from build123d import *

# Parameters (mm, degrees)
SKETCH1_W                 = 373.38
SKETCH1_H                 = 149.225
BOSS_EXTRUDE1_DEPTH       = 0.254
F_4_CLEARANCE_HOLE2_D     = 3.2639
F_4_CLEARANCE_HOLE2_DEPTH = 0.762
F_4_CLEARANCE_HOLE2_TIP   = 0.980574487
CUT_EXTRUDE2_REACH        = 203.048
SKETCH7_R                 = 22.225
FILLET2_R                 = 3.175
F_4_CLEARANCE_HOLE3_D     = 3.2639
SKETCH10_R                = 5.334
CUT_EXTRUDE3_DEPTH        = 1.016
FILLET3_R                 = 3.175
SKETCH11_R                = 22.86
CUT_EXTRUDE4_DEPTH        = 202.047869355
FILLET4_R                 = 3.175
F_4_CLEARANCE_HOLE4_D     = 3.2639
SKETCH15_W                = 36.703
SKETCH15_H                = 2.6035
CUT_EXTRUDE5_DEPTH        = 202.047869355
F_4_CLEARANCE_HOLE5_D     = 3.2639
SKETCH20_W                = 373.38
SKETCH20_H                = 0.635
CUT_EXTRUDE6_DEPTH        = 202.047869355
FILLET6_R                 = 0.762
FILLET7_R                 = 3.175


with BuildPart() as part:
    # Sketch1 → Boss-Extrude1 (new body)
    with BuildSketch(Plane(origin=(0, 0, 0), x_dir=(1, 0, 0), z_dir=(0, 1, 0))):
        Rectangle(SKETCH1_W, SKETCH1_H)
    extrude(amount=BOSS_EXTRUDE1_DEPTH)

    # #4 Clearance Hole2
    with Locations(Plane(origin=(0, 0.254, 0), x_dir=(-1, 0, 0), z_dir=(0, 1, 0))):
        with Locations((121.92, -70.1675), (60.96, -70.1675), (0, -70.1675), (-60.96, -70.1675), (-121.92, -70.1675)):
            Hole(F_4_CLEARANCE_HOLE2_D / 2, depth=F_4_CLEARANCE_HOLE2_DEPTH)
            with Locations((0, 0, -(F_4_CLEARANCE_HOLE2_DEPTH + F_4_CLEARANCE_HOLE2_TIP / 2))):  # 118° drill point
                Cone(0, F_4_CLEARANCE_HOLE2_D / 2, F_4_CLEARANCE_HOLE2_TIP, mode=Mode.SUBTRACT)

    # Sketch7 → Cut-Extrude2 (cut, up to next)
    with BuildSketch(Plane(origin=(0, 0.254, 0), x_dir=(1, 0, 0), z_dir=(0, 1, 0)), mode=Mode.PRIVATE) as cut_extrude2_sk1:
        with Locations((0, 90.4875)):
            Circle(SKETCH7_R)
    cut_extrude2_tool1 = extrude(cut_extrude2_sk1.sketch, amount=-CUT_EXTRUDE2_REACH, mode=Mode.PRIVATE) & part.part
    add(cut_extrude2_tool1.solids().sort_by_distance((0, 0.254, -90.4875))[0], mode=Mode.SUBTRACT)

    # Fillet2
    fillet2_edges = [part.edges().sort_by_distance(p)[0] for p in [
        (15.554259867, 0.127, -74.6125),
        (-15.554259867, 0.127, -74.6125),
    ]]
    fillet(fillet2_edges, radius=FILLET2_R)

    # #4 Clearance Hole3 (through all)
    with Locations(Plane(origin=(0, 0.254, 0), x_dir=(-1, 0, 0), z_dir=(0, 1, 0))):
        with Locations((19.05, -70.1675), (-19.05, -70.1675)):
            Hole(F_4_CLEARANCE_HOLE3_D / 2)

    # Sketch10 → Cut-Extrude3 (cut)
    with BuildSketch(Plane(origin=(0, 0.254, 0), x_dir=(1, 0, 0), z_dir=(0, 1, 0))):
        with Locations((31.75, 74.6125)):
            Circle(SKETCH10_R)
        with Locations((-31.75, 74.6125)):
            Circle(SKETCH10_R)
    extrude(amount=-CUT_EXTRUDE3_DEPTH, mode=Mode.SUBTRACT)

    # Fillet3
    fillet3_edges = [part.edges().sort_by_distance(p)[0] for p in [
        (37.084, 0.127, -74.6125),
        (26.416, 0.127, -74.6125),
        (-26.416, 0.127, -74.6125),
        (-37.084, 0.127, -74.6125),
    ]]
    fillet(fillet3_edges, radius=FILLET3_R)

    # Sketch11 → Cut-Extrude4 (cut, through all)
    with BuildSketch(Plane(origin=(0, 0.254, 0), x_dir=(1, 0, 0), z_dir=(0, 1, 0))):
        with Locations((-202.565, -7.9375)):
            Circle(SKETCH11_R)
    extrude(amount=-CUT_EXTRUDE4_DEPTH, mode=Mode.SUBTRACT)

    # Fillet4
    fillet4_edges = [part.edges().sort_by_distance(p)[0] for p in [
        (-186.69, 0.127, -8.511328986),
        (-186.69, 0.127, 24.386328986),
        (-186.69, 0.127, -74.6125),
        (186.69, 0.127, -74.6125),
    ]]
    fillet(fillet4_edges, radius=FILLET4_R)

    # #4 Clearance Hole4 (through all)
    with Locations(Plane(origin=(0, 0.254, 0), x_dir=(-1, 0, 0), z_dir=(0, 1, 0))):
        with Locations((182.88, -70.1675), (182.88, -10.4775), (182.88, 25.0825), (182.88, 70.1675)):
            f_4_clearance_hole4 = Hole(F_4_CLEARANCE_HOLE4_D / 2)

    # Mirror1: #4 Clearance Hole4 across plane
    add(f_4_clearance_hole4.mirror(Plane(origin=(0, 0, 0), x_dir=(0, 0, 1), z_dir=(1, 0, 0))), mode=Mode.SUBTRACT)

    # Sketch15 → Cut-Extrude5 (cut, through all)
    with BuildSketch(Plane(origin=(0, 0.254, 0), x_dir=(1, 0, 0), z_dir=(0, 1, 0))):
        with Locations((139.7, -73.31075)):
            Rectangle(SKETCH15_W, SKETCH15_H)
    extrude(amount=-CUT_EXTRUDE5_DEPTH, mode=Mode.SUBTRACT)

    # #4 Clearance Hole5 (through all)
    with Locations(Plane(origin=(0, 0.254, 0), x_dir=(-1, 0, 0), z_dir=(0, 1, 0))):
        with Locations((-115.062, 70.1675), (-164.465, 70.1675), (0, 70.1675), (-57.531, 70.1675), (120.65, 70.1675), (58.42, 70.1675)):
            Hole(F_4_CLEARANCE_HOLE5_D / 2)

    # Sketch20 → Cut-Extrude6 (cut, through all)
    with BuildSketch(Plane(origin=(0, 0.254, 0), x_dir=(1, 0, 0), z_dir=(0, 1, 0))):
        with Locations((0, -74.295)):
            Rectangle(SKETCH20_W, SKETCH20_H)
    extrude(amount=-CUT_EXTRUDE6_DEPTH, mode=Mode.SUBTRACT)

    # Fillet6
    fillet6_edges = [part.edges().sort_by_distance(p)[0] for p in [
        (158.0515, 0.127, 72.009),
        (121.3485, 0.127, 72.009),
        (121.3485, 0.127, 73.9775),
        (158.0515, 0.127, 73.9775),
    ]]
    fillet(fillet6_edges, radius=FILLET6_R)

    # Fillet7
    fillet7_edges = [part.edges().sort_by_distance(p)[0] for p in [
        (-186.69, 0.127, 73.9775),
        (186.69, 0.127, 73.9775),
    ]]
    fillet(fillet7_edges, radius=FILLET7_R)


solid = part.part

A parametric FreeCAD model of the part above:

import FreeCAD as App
import Part
import Sketcher
Q = App.Units.Quantity


def edges_at(feature, points):
    """Names of the edges that pass closest to the given points."""
    edges = feature.Shape.Edges
    near = lambda p: min(range(len(edges)), key=lambda i: edges[i].distToShape(Part.Vertex(*p))[0])
    return sorted({f"Edge{near(p) + 1}" for p in points})

doc = App.newDocument("Part")
params = doc.addObject("Spreadsheet::Sheet", "Params")
for row, (alias, value) in enumerate([
    ("sketch1_width", "14.7 in"),
    ("sketch1_height", "5.875 in"),
    ("pad1_length", "0.01 in"),
    ("hole_diameter", "0.1285 in"),
    ("hole_depth", "0.03 in"),
    ("sketch3_diameter", "1.75 in"),
    ("pocket1_length", "0.01 in"),
    ("fillet_radius", "0.125 in"),
    ("hole2_diameter", "0.1285 in"),
    ("sketch5_diameter", "0.42 in"),
    ("pocket2_length", "0.04 in"),
    ("fillet2_radius", "0.125 in"),
    ("sketch6_diameter", "1.8 in"),
    ("fillet3_radius", "0.125 in"),
    ("hole3_diameter", "0.1285 in"),
    ("sketch8_width", "1.445 in"),
    ("hole4_diameter", "0.1285 in"),
    ("sketch10_width", "14.7 in"),
    ("sketch10_height", "0.025 in"),
    ("fillet4_radius", "0.03 in"),
    ("fillet5_radius", "0.125 in"),
], start=1):
    params.set(f"A{row}", alias)
    params.set(f"B{row}", "=" + value)
    params.setAlias(f"B{row}", alias)

body = doc.addObject("PartDesign::Body", "Body")

# Sketch on XZ plane
sketch1 = doc.addObject("Sketcher::SketchObject", "Sketch")
body.addObject(sketch1)
sketch1.AttachmentSupport = (doc.XZ_Plane, [""])
sketch1.MapMode = "FlatFace"
sketch1.addGeometry(Part.LineSegment(App.Vector(-186.69, -74.6125, 0), App.Vector(-186.69, 74.6125, 0)), False)
sketch1.addGeometry(Part.LineSegment(App.Vector(-186.69, 74.6125, 0), App.Vector(186.69, 74.6125, 0)), False)
sketch1.addGeometry(Part.LineSegment(App.Vector(186.69, 74.6125, 0), App.Vector(186.69, -74.6125, 0)), False)
sketch1.addGeometry(Part.LineSegment(App.Vector(186.69, -74.6125, 0), App.Vector(-186.69, -74.6125, 0)), False)
sketch1.addConstraint(Sketcher.Constraint("Coincident", 0, 2, 1, 1))
sketch1.addConstraint(Sketcher.Constraint("Coincident", 1, 2, 2, 1))
sketch1.addConstraint(Sketcher.Constraint("Coincident", 2, 2, 3, 1))
sketch1.addConstraint(Sketcher.Constraint("Coincident", 3, 2, 0, 1))
sketch1.addConstraint(Sketcher.Constraint("Vertical", 0))
sketch1.addConstraint(Sketcher.Constraint("Horizontal", 1))
sketch1.addConstraint(Sketcher.Constraint("Vertical", 2))
sketch1.addConstraint(Sketcher.Constraint("Horizontal", 3))
sketch1.addConstraint(Sketcher.Constraint("Symmetric", 0, 2, 2, 2, -1, 1))
sketch1.addConstraint(Sketcher.Constraint("DistanceX", 1, 1, 1, 2, Q("14.7 in")))
sketch1.addConstraint(Sketcher.Constraint("DistanceY", 0, 1, 0, 2, Q("5.875 in")))
sketch1.setExpression("Constraints[9]", "Params.sketch1_width")
sketch1.setExpression("Constraints[10]", "Params.sketch1_height")
pad1 = doc.addObject("PartDesign::Pad", "Pad")
body.addObject(pad1)
pad1.Profile = sketch1
pad1.setExpression("Length", "Params.pad1_length")
pad1.Reversed = True

# Sketch on XZ plane
sketch2 = doc.addObject("Sketcher::SketchObject", "Sketch001")
body.addObject(sketch2)
sketch2.AttachmentSupport = (doc.XZ_Plane, [""])
sketch2.MapMode = "FlatFace"
sketch2.AttachmentOffset = App.Placement(App.Vector(0, 0, -0.01 * 25.4), App.Rotation())
sketch2.addGeometry(Part.Circle(App.Vector(-121.92, -70.1675, 0), App.Vector(0, 0, 1), 1.63195), False)
sketch2.addGeometry(Part.Circle(App.Vector(-60.96, -70.1675, 0), App.Vector(0, 0, 1), 1.63195), False)
sketch2.addGeometry(Part.Circle(App.Vector(0, -70.1675, 0), App.Vector(0, 0, 1), 1.63195), False)
sketch2.addGeometry(Part.Circle(App.Vector(60.96, -70.1675, 0), App.Vector(0, 0, 1), 1.63195), False)
sketch2.addGeometry(Part.Circle(App.Vector(121.92, -70.1675, 0), App.Vector(0, 0, 1), 1.63195), False)
sketch2.addConstraint(Sketcher.Constraint("Equal", 0, 1))
sketch2.addConstraint(Sketcher.Constraint("Equal", 1, 2))
sketch2.addConstraint(Sketcher.Constraint("Equal", 2, 3))
sketch2.addConstraint(Sketcher.Constraint("Equal", 3, 4))
sketch2.addConstraint(Sketcher.Constraint("Symmetric", 1, 3, 3, 3, -2))
sketch2.addConstraint(Sketcher.Constraint("Symmetric", 0, 3, 4, 3, -2))
sketch2.addConstraint(Sketcher.Constraint("PointOnObject", 2, 3, -2))
sketch2.addConstraint(Sketcher.Constraint("Horizontal", 0, 3, 1, 3))
sketch2.addConstraint(Sketcher.Constraint("Horizontal", 1, 3, 2, 3))
sketch2.addConstraint(Sketcher.Constraint("Diameter", 0, Q("0.1285 in")))
sketch2.addConstraint(Sketcher.Constraint("DistanceX", 0, 3, -1, 1, Q("4.8 in")))
sketch2.addConstraint(Sketcher.Constraint("DistanceX", 1, 3, -1, 1, Q("2.4 in")))
sketch2.addConstraint(Sketcher.Constraint("DistanceY", 0, 3, -1, 1, Q("2.7625 in")))
doc.recompute()
hole = doc.addObject("PartDesign::Hole", "Hole")
body.addObject(hole)
hole.Profile = sketch2
hole.ThreadType = "None"
hole.setExpression("Diameter", "Params.hole_diameter")
hole.DepthType = "Dimension"
hole.setExpression("Depth", "Params.hole_depth")
hole.DrillPoint = "Angled"
hole.DrillPointAngle = 118
hole.Reversed = True

# Sketch on XZ plane
sketch3 = doc.addObject("Sketcher::SketchObject", "Sketch002")
body.addObject(sketch3)
sketch3.AttachmentSupport = (doc.XZ_Plane, [""])
sketch3.MapMode = "FlatFace"
sketch3.AttachmentOffset = App.Placement(App.Vector(0, 0, -0.01 * 25.4), App.Rotation())
sketch3.addGeometry(Part.Circle(App.Vector(0, -90.4875, 0), App.Vector(0, 0, 1), 22.225), False)
sketch3.addConstraint(Sketcher.Constraint("PointOnObject", 0, 3, -2))
sketch3.addConstraint(Sketcher.Constraint("Diameter", 0, Q("1.75 in")))
sketch3.addConstraint(Sketcher.Constraint("DistanceY", 0, 3, -1, 1, Q("3.5625 in")))
sketch3.setExpression("Constraints[1]", "Params.sketch3_diameter")
pocket1 = doc.addObject("PartDesign::Pocket", "Pocket")
body.addObject(pocket1)
pocket1.Profile = sketch3
pocket1.setExpression("Length", "Params.pocket1_length")
pocket1.Reversed = True
doc.recompute()

fillet = doc.addObject("PartDesign::Fillet", "Fillet")
body.addObject(fillet)
fillet.Base = (pocket1, edges_at(pocket1, [(15.554, 0.127, -74.612), (-15.554, 0.127, -74.612)]))
fillet.setExpression("Radius", "Params.fillet_radius")

# Sketch on XZ plane
sketch4 = doc.addObject("Sketcher::SketchObject", "Sketch003")
body.addObject(sketch4)
sketch4.AttachmentSupport = (doc.XZ_Plane, [""])
sketch4.MapMode = "FlatFace"
sketch4.AttachmentOffset = App.Placement(App.Vector(0, 0, -0.01 * 25.4), App.Rotation())
sketch4.addGeometry(Part.Circle(App.Vector(-19.05, -70.1675, 0), App.Vector(0, 0, 1), 1.63195), False)
sketch4.addGeometry(Part.Circle(App.Vector(19.05, -70.1675, 0), App.Vector(0, 0, 1), 1.63195), False)
sketch4.addConstraint(Sketcher.Constraint("Equal", 0, 1))
sketch4.addConstraint(Sketcher.Constraint("Symmetric", 0, 3, 1, 3, -2))
sketch4.addConstraint(Sketcher.Constraint("Diameter", 0, Q("0.1285 in")))
sketch4.addConstraint(Sketcher.Constraint("DistanceX", 0, 3, 1, 3, Q("1.5 in")))
sketch4.addConstraint(Sketcher.Constraint("DistanceY", 0, 3, -1, 1, Q("2.7625 in")))
doc.recompute()
hole2 = doc.addObject("PartDesign::Hole", "Hole001")
body.addObject(hole2)
hole2.Profile = sketch4
hole2.ThreadType = "None"
hole2.setExpression("Diameter", "Params.hole2_diameter")
hole2.DepthType = "ThroughAll"
hole2.Reversed = True

# Sketch on XZ plane
sketch5 = doc.addObject("Sketcher::SketchObject", "Sketch004")
body.addObject(sketch5)
sketch5.AttachmentSupport = (doc.XZ_Plane, [""])
sketch5.MapMode = "FlatFace"
sketch5.AttachmentOffset = App.Placement(App.Vector(0, 0, -0.01 * 25.4), App.Rotation())
sketch5.addGeometry(Part.Circle(App.Vector(31.75, -74.6125, 0), App.Vector(0, 0, 1), 5.334), False)
sketch5.addGeometry(Part.Circle(App.Vector(-31.75, -74.6125, 0), App.Vector(0, 0, 1), 5.334), False)
sketch5.addConstraint(Sketcher.Constraint("Equal", 0, 1))
sketch5.addConstraint(Sketcher.Constraint("Symmetric", 0, 3, 1, 3, -2))
sketch5.addConstraint(Sketcher.Constraint("Diameter", 0, Q("0.42 in")))
sketch5.addConstraint(Sketcher.Constraint("DistanceX", 1, 3, 0, 3, Q("2.5 in")))
sketch5.addConstraint(Sketcher.Constraint("DistanceY", 0, 3, -1, 1, Q("2.9375 in")))
sketch5.setExpression("Constraints[2]", "Params.sketch5_diameter")
pocket2 = doc.addObject("PartDesign::Pocket", "Pocket001")
body.addObject(pocket2)
pocket2.Profile = sketch5
pocket2.setExpression("Length", "Params.pocket2_length")
pocket2.Reversed = True
doc.recompute()

fillet2 = doc.addObject("PartDesign::Fillet", "Fillet001")
body.addObject(fillet2)
fillet2.Base = (pocket2, edges_at(pocket2, [
    (37.084, 0.127, -74.612),
    (26.416, 0.127, -74.612),
    (-26.416, 0.127, -74.612),
    (-37.084, 0.127, -74.612),
]))
fillet2.setExpression("Radius", "Params.fillet2_radius")

# Sketch on XZ plane
sketch6 = doc.addObject("Sketcher::SketchObject", "Sketch005")
body.addObject(sketch6)
sketch6.AttachmentSupport = (doc.XZ_Plane, [""])
sketch6.MapMode = "FlatFace"
sketch6.AttachmentOffset = App.Placement(App.Vector(0, 0, -0.01 * 25.4), App.Rotation())
sketch6.addGeometry(Part.Circle(App.Vector(-202.565, 7.9375, 0), App.Vector(0, 0, 1), 22.86), False)
sketch6.addConstraint(Sketcher.Constraint("Diameter", 0, Q("1.8 in")))
sketch6.addConstraint(Sketcher.Constraint("DistanceX", 0, 3, -1, 1, Q("7.975 in")))
sketch6.addConstraint(Sketcher.Constraint("DistanceY", -1, 1, 0, 3, Q("0.3125 in")))
sketch6.setExpression("Constraints[0]", "Params.sketch6_diameter")
pocket3 = doc.addObject("PartDesign::Pocket", "Pocket002")
body.addObject(pocket3)
pocket3.Profile = sketch6
pocket3.Type = "ThroughAll"
pocket3.Reversed = True
doc.recompute()

fillet3 = doc.addObject("PartDesign::Fillet", "Fillet002")
body.addObject(fillet3)
fillet3.Base = (pocket3, edges_at(pocket3, [
    (-186.69, 0.127, -8.511),
    (-186.69, 0.127, 24.386),
    (-186.69, 0.127, -74.612),
    (186.69, 0.127, -74.612),
]))
fillet3.setExpression("Radius", "Params.fillet3_radius")

# Sketch on XZ plane
sketch7 = doc.addObject("Sketcher::SketchObject", "Sketch006")
body.addObject(sketch7)
sketch7.AttachmentSupport = (doc.XZ_Plane, [""])
sketch7.MapMode = "FlatFace"
sketch7.AttachmentOffset = App.Placement(App.Vector(0, 0, -0.01 * 25.4), App.Rotation())
sketch7.addGeometry(Part.Circle(App.Vector(-182.88, -70.1675, 0), App.Vector(0, 0, 1), 1.63195), False)
sketch7.addGeometry(Part.Circle(App.Vector(-182.88, -10.4775, 0), App.Vector(0, 0, 1), 1.63195), False)
sketch7.addGeometry(Part.Circle(App.Vector(-182.88, 25.0825, 0), App.Vector(0, 0, 1), 1.63195), False)
sketch7.addGeometry(Part.Circle(App.Vector(-182.88, 70.1675, 0), App.Vector(0, 0, 1), 1.63195), False)
sketch7.addConstraint(Sketcher.Constraint("Equal", 0, 1))
sketch7.addConstraint(Sketcher.Constraint("Equal", 1, 2))
sketch7.addConstraint(Sketcher.Constraint("Equal", 2, 3))
sketch7.addConstraint(Sketcher.Constraint("Symmetric", 0, 3, 3, 3, -1))
sketch7.addConstraint(Sketcher.Constraint("Vertical", 0, 3, 1, 3))
sketch7.addConstraint(Sketcher.Constraint("Vertical", 1, 3, 2, 3))
sketch7.addConstraint(Sketcher.Constraint("Diameter", 0, Q("0.1285 in")))
sketch7.addConstraint(Sketcher.Constraint("DistanceX", 0, 3, -1, 1, Q("7.2 in")))
sketch7.addConstraint(Sketcher.Constraint("DistanceY", 1, 3, 2, 3, Q("1.4 in")))
sketch7.addConstraint(Sketcher.Constraint("DistanceY", 0, 3, 1, 3, Q("2.35 in")))
sketch7.addConstraint(Sketcher.Constraint("DistanceY", 2, 3, 3, 3, Q("1.775 in")))
doc.recompute()
hole3 = doc.addObject("PartDesign::Hole", "Hole002")
body.addObject(hole3)
hole3.Profile = sketch7
hole3.ThreadType = "None"
hole3.setExpression("Diameter", "Params.hole3_diameter")
hole3.DepthType = "ThroughAll"
hole3.Reversed = True
doc.recompute()

mirrored = doc.addObject("PartDesign::Mirrored", "Mirrored")
body.addObject(mirrored)
mirrored.Originals = [hole3]
mirrored.MirrorPlane = (doc.YZ_Plane, [""])
body.Tip = mirrored

# Sketch on XZ plane
sketch8 = doc.addObject("Sketcher::SketchObject", "Sketch007")
body.addObject(sketch8)
sketch8.AttachmentSupport = (doc.XZ_Plane, [""])
sketch8.MapMode = "FlatFace"
sketch8.AttachmentOffset = App.Placement(App.Vector(0, 0, -0.01 * 25.4), App.Rotation())
sketch8.addGeometry(Part.LineSegment(App.Vector(121.3485, 72.009, 0), App.Vector(121.3485, 74.6125, 0)), False)
sketch8.addGeometry(Part.LineSegment(App.Vector(121.3485, 74.6125, 0), App.Vector(158.0515, 74.6125, 0)), False)
sketch8.addGeometry(Part.LineSegment(App.Vector(158.0515, 74.6125, 0), App.Vector(158.0515, 72.009, 0)), False)
sketch8.addGeometry(Part.LineSegment(App.Vector(158.0515, 72.009, 0), App.Vector(121.3485, 72.009, 0)), False)
sketch8.addConstraint(Sketcher.Constraint("Coincident", 0, 2, 1, 1))
sketch8.addConstraint(Sketcher.Constraint("Coincident", 1, 2, 2, 1))
sketch8.addConstraint(Sketcher.Constraint("Coincident", 2, 2, 3, 1))
sketch8.addConstraint(Sketcher.Constraint("Coincident", 3, 2, 0, 1))
sketch8.addConstraint(Sketcher.Constraint("Vertical", 0))
sketch8.addConstraint(Sketcher.Constraint("Horizontal", 1))
sketch8.addConstraint(Sketcher.Constraint("Vertical", 2))
sketch8.addConstraint(Sketcher.Constraint("Horizontal", 3))
sketch8.addConstraint(Sketcher.Constraint("DistanceX", 1, 1, 1, 2, Q("1.445 in")))
sketch8.addConstraint(Sketcher.Constraint("DistanceY", 0, 1, 0, 2, Q("0.1025 in")))
sketch8.addConstraint(Sketcher.Constraint("DistanceY", -1, 1, 0, 2, Q("2.9375 in")))
sketch8.addConstraint(Sketcher.Constraint("DistanceX", -1, 1, 0, 2, Q("4.7775 in")))
sketch8.setExpression("Constraints[8]", "Params.sketch8_width")
pocket4 = doc.addObject("PartDesign::Pocket", "Pocket003")
body.addObject(pocket4)
pocket4.Profile = sketch8
pocket4.Type = "ThroughAll"
pocket4.Reversed = True

# Sketch on XZ plane
sketch9 = doc.addObject("Sketcher::SketchObject", "Sketch008")
body.addObject(sketch9)
sketch9.AttachmentSupport = (doc.XZ_Plane, [""])
sketch9.MapMode = "FlatFace"
sketch9.AttachmentOffset = App.Placement(App.Vector(0, 0, -0.01 * 25.4), App.Rotation())
sketch9.addGeometry(Part.Circle(App.Vector(115.062, 70.1675, 0), App.Vector(0, 0, 1), 1.63195), False)
sketch9.addGeometry(Part.Circle(App.Vector(164.465, 70.1675, 0), App.Vector(0, 0, 1), 1.63195), False)
sketch9.addGeometry(Part.Circle(App.Vector(0, 70.1675, 0), App.Vector(0, 0, 1), 1.63195), False)
sketch9.addGeometry(Part.Circle(App.Vector(57.531, 70.1675, 0), App.Vector(0, 0, 1), 1.63195), False)
sketch9.addGeometry(Part.Circle(App.Vector(-120.65, 70.1675, 0), App.Vector(0, 0, 1), 1.63195), False)
sketch9.addGeometry(Part.Circle(App.Vector(-58.42, 70.1675, 0), App.Vector(0, 0, 1), 1.63195), False)
sketch9.addConstraint(Sketcher.Constraint("Equal", 0, 1))
sketch9.addConstraint(Sketcher.Constraint("Equal", 1, 2))
sketch9.addConstraint(Sketcher.Constraint("Equal", 2, 3))
sketch9.addConstraint(Sketcher.Constraint("Equal", 3, 4))
sketch9.addConstraint(Sketcher.Constraint("Equal", 4, 5))
sketch9.addConstraint(Sketcher.Constraint("PointOnObject", 2, 3, -2))
sketch9.addConstraint(Sketcher.Constraint("Horizontal", 0, 3, 1, 3))
sketch9.addConstraint(Sketcher.Constraint("Horizontal", 1, 3, 2, 3))
sketch9.addConstraint(Sketcher.Constraint("Horizontal", 2, 3, 3, 3))
sketch9.addConstraint(Sketcher.Constraint("Horizontal", 3, 3, 4, 3))
sketch9.addConstraint(Sketcher.Constraint("Horizontal", 4, 3, 5, 3))
sketch9.addConstraint(Sketcher.Constraint("Diameter", 0, Q("0.1285 in")))
sketch9.addConstraint(Sketcher.Constraint("DistanceX", 5, 3, -1, 1, Q("2.3 in")))
sketch9.addConstraint(Sketcher.Constraint("DistanceX", -1, 1, 0, 3, Q("4.53 in")))
sketch9.addConstraint(Sketcher.Constraint("DistanceX", 4, 3, -1, 1, Q("4.75 in")))
sketch9.addConstraint(Sketcher.Constraint("DistanceX", 3, 3, 1, 3, Q("4.21 in")))
sketch9.addConstraint(Sketcher.Constraint("DistanceX", -1, 1, 1, 3, Q("6.475 in")))
sketch9.addConstraint(Sketcher.Constraint("DistanceY", -1, 1, 0, 3, Q("2.7625 in")))
doc.recompute()
hole4 = doc.addObject("PartDesign::Hole", "Hole003")
body.addObject(hole4)
hole4.Profile = sketch9
hole4.ThreadType = "None"
hole4.setExpression("Diameter", "Params.hole4_diameter")
hole4.DepthType = "ThroughAll"
hole4.Reversed = True

# Sketch on XZ plane
sketch10 = doc.addObject("Sketcher::SketchObject", "Sketch009")
body.addObject(sketch10)
sketch10.AttachmentSupport = (doc.XZ_Plane, [""])
sketch10.MapMode = "FlatFace"
sketch10.AttachmentOffset = App.Placement(App.Vector(0, 0, -0.01 * 25.4), App.Rotation())
sketch10.addGeometry(Part.LineSegment(App.Vector(-186.69, 73.9775, 0), App.Vector(-186.69, 74.6125, 0)), False)
sketch10.addGeometry(Part.LineSegment(App.Vector(-186.69, 74.6125, 0), App.Vector(186.69, 74.6125, 0)), False)
sketch10.addGeometry(Part.LineSegment(App.Vector(186.69, 74.6125, 0), App.Vector(186.69, 73.9775, 0)), False)
sketch10.addGeometry(Part.LineSegment(App.Vector(186.69, 73.9775, 0), App.Vector(-186.69, 73.9775, 0)), False)
sketch10.addConstraint(Sketcher.Constraint("Coincident", 0, 2, 1, 1))
sketch10.addConstraint(Sketcher.Constraint("Coincident", 1, 2, 2, 1))
sketch10.addConstraint(Sketcher.Constraint("Coincident", 2, 2, 3, 1))
sketch10.addConstraint(Sketcher.Constraint("Coincident", 3, 2, 0, 1))
sketch10.addConstraint(Sketcher.Constraint("Vertical", 0))
sketch10.addConstraint(Sketcher.Constraint("Horizontal", 1))
sketch10.addConstraint(Sketcher.Constraint("Vertical", 2))
sketch10.addConstraint(Sketcher.Constraint("Horizontal", 3))
sketch10.addConstraint(Sketcher.Constraint("DistanceX", 1, 1, 1, 2, Q("14.7 in")))
sketch10.addConstraint(Sketcher.Constraint("DistanceY", 0, 1, 0, 2, Q("0.025 in")))
sketch10.addConstraint(Sketcher.Constraint("DistanceX", 0, 2, -1, 1, Q("7.35 in")))
sketch10.addConstraint(Sketcher.Constraint("DistanceY", -1, 1, 0, 2, Q("2.9375 in")))
sketch10.setExpression("Constraints[8]", "Params.sketch10_width")
sketch10.setExpression("Constraints[9]", "Params.sketch10_height")
pocket5 = doc.addObject("PartDesign::Pocket", "Pocket004")
body.addObject(pocket5)
pocket5.Profile = sketch10
pocket5.Type = "ThroughAll"
pocket5.Reversed = True
doc.recompute()

fillet4 = doc.addObject("PartDesign::Fillet", "Fillet003")
body.addObject(fillet4)
fillet4.Base = (pocket5, edges_at(pocket5, [
    (158.052, 0.127, 72.009),
    (121.349, 0.127, 72.009),
    (121.349, 0.127, 73.978),
    (158.052, 0.127, 73.978),
]))
fillet4.setExpression("Radius", "Params.fillet4_radius")
doc.recompute()

fillet5 = doc.addObject("PartDesign::Fillet", "Fillet004")
body.addObject(fillet5)
fillet5.Base = (fillet4, edges_at(fillet4, [(-186.69, 0.127, 73.978), (186.69, 0.127, 73.978)]))
fillet5.setExpression("Radius", "Params.fillet5_radius")

doc.recompute()
